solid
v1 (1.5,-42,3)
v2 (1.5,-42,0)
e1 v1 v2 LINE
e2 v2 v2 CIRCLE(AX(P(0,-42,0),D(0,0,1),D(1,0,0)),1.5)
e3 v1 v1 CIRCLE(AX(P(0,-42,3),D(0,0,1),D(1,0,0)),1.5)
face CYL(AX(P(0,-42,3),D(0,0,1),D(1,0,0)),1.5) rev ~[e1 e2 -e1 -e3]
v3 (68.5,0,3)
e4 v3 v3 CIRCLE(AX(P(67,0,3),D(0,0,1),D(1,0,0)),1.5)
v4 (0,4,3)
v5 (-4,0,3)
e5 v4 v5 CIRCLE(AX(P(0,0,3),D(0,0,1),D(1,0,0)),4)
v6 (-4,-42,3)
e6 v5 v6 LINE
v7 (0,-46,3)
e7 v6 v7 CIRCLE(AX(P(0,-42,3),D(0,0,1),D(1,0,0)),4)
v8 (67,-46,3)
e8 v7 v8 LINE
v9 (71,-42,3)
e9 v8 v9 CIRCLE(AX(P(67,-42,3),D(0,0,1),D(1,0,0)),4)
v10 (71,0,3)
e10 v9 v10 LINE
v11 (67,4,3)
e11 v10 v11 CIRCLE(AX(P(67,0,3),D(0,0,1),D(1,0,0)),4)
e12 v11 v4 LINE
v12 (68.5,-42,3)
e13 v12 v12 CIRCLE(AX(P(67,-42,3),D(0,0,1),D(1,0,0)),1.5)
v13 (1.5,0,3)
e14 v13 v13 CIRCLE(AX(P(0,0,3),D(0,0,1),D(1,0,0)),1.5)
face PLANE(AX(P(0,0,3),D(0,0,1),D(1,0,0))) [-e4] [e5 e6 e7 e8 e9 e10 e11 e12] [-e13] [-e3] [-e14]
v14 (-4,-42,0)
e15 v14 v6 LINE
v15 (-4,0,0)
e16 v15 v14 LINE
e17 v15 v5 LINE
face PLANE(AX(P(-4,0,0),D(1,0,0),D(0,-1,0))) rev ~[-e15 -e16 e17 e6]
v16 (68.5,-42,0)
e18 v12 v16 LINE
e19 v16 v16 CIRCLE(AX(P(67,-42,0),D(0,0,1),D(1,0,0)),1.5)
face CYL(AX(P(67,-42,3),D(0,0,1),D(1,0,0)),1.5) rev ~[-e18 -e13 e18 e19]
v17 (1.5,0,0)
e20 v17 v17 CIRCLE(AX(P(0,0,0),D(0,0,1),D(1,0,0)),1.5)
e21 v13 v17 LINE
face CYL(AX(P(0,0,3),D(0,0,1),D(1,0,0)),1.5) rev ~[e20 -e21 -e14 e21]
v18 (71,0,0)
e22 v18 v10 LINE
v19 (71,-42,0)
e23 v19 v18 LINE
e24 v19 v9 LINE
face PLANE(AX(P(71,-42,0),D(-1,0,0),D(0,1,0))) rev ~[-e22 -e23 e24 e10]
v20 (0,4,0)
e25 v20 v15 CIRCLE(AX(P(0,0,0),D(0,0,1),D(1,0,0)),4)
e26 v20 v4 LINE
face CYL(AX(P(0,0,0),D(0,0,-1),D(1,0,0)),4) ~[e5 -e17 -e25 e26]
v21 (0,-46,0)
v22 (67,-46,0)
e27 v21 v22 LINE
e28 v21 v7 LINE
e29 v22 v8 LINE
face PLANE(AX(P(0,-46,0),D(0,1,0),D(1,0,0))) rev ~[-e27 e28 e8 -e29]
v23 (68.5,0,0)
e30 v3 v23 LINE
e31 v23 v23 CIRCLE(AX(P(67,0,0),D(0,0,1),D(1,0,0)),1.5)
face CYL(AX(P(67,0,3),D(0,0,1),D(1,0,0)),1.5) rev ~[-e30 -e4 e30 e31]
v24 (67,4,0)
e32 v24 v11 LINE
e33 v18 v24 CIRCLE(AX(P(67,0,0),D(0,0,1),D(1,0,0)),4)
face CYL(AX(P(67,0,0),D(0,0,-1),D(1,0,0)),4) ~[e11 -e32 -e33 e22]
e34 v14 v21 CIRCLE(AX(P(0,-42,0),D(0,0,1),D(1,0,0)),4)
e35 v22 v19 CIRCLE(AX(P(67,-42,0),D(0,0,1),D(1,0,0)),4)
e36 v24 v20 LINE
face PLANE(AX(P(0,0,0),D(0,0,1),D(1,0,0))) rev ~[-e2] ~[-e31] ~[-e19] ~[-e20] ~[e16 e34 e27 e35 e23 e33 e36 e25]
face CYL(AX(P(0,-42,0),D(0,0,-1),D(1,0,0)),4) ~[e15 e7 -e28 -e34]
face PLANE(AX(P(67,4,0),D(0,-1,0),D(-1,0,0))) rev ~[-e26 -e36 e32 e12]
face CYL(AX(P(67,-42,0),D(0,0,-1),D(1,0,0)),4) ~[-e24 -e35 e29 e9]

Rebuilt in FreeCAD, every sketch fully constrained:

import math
import FreeCAD as App
import Part
import Sketcher
Q = App.Units.Quantity

doc = App.newDocument("Part")
params = doc.addObject("Spreadsheet::Sheet", "Params")
for row, (alias, value) in enumerate([
    ("sketch1_radius", "4 mm"),
    ("sketch1_width", "67 mm"),
    ("sketch1_height", "42 mm"),
    ("pad1_length", "3 mm"),
    ("sketch2_diameter", "3 mm"),
], start=1):
    params.set(f"A{row}", alias)
    params.set(f"B{row}", "=" + value)
    params.setAlias(f"B{row}", alias)

body = doc.addObject("PartDesign::Body", "Body")

# Sketch on XY plane
sketch1 = body.newObject("Sketcher::SketchObject", "Sketch")
sketch1.AttachmentSupport = (doc.getObject("XY_Plane"), [""])
sketch1.MapMode = "FlatFace"
sketch1.addGeometry(Part.ArcOfCircle(Part.Circle(App.Vector(67, 0, 0), App.Vector(0, 0, 1), 4), math.radians(0), math.radians(90)), False)
sketch1.addGeometry(Part.LineSegment(App.Vector(67, 4, 0), App.Vector(0, 4, 0)), False)
sketch1.addGeometry(Part.ArcOfCircle(Part.Circle(App.Vector(0, 0, 0), App.Vector(0, 0, 1), 4), math.radians(90), math.radians(180)), False)
sketch1.addGeometry(Part.LineSegment(App.Vector(-4, 0, 0), App.Vector(-4, -42, 0)), False)
sketch1.addGeometry(Part.ArcOfCircle(Part.Circle(App.Vector(0, -42, 0), App.Vector(0, 0, 1), 4), math.radians(180), math.radians(270)), False)
sketch1.addGeometry(Part.LineSegment(App.Vector(0, -46, 0), App.Vector(67, -46, 0)), False)
sketch1.addGeometry(Part.ArcOfCircle(Part.Circle(App.Vector(67, -42, 0), App.Vector(0, 0, 1), 4), math.radians(-90), math.radians(0)), False)
sketch1.addGeometry(Part.LineSegment(App.Vector(71, -42, 0), App.Vector(71, 0, 0)), False)
sketch1.addConstraint(Sketcher.Constraint("Tangent", 0, 2, 1, 1))
sketch1.addConstraint(Sketcher.Constraint("Tangent", 1, 2, 2, 1))
sketch1.addConstraint(Sketcher.Constraint("Tangent", 2, 2, 3, 1))
sketch1.addConstraint(Sketcher.Constraint("Tangent", 3, 2, 4, 1))
sketch1.addConstraint(Sketcher.Constraint("Tangent", 4, 2, 5, 1))
sketch1.addConstraint(Sketcher.Constraint("Tangent", 5, 2, 6, 1))
sketch1.addConstraint(Sketcher.Constraint("Tangent", 6, 2, 7, 1))
sketch1.addConstraint(Sketcher.Constraint("Tangent", 7, 2, 0, 1))
sketch1.addConstraint(Sketcher.Constraint("Horizontal", 1))
sketch1.addConstraint(Sketcher.Constraint("Vertical", 3))
sketch1.addConstraint(Sketcher.Constraint("Horizontal", 5))
sketch1.addConstraint(Sketcher.Constraint("Vertical", 7))
sketch1.addConstraint(Sketcher.Constraint("Coincident", 2, 3, -1, 1))
sketch1.addConstraint(Sketcher.Constraint("Equal", 0, 2))
sketch1.addConstraint(Sketcher.Constraint("Equal", 2, 4))
sketch1.addConstraint(Sketcher.Constraint("Equal", 4, 6))
sketch1.addConstraint(Sketcher.Constraint("Radius", 0, Q("4 mm")))
sketch1.addConstraint(Sketcher.Constraint("DistanceX", 1, 2, 1, 1, Q("67 mm")))
sketch1.addConstraint(Sketcher.Constraint("DistanceY", 3, 2, 3, 1, Q("42 mm")))
sketch1.setExpression("Constraints[16]", "Params.sketch1_radius")
sketch1.setExpression("Constraints[17]", "Params.sketch1_width")
sketch1.setExpression("Constraints[18]", "Params.sketch1_height")
pad1 = body.newObject("PartDesign::Pad", "Pad")
pad1.Profile = sketch1
pad1.setExpression("Length", "Params.pad1_length")

# Sketch on XY plane
sketch2 = body.newObject("Sketcher::SketchObject", "Sketch001")
sketch2.AttachmentSupport = (doc.getObject("XY_Plane"), [""])
sketch2.MapMode = "FlatFace"
sketch2.AttachmentOffset = App.Placement(App.Vector(0, 0, 3), App.Rotation())
sketch2.addGeometry(Part.Circle(App.Vector(67, 0, 0), App.Vector(0, 0, 1), 1.5), False)
sketch2.addGeometry(Part.Circle(App.Vector(67, -42, 0), App.Vector(0, 0, 1), 1.5), False)
sketch2.addGeometry(Part.Circle(App.Vector(0, -42, 0), App.Vector(0, 0, 1), 1.5), False)
sketch2.addGeometry(Part.Circle(App.Vector(0, 0, 0), App.Vector(0, 0, 1), 1.5), False)
sketch2.addConstraint(Sketcher.Constraint("Coincident", 3, 3, -1, 1))
sketch2.addConstraint(Sketcher.Constraint("Equal", 0, 1))
sketch2.addConstraint(Sketcher.Constraint("Equal", 1, 2))
sketch2.addConstraint(Sketcher.Constraint("Equal", 2, 3))
sketch2.addConstraint(Sketcher.Constraint("PointOnObject", 0, 3, -1))
sketch2.addConstraint(Sketcher.Constraint("PointOnObject", 2, 3, -2))
sketch2.addConstraint(Sketcher.Constraint("Horizontal", 1, 3, 2, 3))
sketch2.addConstraint(Sketcher.Constraint("Vertical", 0, 3, 1, 3))
sketch2.addConstraint(Sketcher.Constraint("Diameter", 0, Q("3 mm")))
sketch2.addConstraint(Sketcher.Constraint("DistanceX", -1, 1, 0, 3, Q("67 mm")))
sketch2.addConstraint(Sketcher.Constraint("DistanceY", 1, 3, -1, 1, Q("42 mm")))
sketch2.setExpression("Constraints[8]", "Params.sketch2_diameter")
pocket1 = body.newObject("PartDesign::Pocket", "Pocket")
pocket1.Profile = sketch2
pocket1.Type = "ThroughAll"

doc.recompute()
